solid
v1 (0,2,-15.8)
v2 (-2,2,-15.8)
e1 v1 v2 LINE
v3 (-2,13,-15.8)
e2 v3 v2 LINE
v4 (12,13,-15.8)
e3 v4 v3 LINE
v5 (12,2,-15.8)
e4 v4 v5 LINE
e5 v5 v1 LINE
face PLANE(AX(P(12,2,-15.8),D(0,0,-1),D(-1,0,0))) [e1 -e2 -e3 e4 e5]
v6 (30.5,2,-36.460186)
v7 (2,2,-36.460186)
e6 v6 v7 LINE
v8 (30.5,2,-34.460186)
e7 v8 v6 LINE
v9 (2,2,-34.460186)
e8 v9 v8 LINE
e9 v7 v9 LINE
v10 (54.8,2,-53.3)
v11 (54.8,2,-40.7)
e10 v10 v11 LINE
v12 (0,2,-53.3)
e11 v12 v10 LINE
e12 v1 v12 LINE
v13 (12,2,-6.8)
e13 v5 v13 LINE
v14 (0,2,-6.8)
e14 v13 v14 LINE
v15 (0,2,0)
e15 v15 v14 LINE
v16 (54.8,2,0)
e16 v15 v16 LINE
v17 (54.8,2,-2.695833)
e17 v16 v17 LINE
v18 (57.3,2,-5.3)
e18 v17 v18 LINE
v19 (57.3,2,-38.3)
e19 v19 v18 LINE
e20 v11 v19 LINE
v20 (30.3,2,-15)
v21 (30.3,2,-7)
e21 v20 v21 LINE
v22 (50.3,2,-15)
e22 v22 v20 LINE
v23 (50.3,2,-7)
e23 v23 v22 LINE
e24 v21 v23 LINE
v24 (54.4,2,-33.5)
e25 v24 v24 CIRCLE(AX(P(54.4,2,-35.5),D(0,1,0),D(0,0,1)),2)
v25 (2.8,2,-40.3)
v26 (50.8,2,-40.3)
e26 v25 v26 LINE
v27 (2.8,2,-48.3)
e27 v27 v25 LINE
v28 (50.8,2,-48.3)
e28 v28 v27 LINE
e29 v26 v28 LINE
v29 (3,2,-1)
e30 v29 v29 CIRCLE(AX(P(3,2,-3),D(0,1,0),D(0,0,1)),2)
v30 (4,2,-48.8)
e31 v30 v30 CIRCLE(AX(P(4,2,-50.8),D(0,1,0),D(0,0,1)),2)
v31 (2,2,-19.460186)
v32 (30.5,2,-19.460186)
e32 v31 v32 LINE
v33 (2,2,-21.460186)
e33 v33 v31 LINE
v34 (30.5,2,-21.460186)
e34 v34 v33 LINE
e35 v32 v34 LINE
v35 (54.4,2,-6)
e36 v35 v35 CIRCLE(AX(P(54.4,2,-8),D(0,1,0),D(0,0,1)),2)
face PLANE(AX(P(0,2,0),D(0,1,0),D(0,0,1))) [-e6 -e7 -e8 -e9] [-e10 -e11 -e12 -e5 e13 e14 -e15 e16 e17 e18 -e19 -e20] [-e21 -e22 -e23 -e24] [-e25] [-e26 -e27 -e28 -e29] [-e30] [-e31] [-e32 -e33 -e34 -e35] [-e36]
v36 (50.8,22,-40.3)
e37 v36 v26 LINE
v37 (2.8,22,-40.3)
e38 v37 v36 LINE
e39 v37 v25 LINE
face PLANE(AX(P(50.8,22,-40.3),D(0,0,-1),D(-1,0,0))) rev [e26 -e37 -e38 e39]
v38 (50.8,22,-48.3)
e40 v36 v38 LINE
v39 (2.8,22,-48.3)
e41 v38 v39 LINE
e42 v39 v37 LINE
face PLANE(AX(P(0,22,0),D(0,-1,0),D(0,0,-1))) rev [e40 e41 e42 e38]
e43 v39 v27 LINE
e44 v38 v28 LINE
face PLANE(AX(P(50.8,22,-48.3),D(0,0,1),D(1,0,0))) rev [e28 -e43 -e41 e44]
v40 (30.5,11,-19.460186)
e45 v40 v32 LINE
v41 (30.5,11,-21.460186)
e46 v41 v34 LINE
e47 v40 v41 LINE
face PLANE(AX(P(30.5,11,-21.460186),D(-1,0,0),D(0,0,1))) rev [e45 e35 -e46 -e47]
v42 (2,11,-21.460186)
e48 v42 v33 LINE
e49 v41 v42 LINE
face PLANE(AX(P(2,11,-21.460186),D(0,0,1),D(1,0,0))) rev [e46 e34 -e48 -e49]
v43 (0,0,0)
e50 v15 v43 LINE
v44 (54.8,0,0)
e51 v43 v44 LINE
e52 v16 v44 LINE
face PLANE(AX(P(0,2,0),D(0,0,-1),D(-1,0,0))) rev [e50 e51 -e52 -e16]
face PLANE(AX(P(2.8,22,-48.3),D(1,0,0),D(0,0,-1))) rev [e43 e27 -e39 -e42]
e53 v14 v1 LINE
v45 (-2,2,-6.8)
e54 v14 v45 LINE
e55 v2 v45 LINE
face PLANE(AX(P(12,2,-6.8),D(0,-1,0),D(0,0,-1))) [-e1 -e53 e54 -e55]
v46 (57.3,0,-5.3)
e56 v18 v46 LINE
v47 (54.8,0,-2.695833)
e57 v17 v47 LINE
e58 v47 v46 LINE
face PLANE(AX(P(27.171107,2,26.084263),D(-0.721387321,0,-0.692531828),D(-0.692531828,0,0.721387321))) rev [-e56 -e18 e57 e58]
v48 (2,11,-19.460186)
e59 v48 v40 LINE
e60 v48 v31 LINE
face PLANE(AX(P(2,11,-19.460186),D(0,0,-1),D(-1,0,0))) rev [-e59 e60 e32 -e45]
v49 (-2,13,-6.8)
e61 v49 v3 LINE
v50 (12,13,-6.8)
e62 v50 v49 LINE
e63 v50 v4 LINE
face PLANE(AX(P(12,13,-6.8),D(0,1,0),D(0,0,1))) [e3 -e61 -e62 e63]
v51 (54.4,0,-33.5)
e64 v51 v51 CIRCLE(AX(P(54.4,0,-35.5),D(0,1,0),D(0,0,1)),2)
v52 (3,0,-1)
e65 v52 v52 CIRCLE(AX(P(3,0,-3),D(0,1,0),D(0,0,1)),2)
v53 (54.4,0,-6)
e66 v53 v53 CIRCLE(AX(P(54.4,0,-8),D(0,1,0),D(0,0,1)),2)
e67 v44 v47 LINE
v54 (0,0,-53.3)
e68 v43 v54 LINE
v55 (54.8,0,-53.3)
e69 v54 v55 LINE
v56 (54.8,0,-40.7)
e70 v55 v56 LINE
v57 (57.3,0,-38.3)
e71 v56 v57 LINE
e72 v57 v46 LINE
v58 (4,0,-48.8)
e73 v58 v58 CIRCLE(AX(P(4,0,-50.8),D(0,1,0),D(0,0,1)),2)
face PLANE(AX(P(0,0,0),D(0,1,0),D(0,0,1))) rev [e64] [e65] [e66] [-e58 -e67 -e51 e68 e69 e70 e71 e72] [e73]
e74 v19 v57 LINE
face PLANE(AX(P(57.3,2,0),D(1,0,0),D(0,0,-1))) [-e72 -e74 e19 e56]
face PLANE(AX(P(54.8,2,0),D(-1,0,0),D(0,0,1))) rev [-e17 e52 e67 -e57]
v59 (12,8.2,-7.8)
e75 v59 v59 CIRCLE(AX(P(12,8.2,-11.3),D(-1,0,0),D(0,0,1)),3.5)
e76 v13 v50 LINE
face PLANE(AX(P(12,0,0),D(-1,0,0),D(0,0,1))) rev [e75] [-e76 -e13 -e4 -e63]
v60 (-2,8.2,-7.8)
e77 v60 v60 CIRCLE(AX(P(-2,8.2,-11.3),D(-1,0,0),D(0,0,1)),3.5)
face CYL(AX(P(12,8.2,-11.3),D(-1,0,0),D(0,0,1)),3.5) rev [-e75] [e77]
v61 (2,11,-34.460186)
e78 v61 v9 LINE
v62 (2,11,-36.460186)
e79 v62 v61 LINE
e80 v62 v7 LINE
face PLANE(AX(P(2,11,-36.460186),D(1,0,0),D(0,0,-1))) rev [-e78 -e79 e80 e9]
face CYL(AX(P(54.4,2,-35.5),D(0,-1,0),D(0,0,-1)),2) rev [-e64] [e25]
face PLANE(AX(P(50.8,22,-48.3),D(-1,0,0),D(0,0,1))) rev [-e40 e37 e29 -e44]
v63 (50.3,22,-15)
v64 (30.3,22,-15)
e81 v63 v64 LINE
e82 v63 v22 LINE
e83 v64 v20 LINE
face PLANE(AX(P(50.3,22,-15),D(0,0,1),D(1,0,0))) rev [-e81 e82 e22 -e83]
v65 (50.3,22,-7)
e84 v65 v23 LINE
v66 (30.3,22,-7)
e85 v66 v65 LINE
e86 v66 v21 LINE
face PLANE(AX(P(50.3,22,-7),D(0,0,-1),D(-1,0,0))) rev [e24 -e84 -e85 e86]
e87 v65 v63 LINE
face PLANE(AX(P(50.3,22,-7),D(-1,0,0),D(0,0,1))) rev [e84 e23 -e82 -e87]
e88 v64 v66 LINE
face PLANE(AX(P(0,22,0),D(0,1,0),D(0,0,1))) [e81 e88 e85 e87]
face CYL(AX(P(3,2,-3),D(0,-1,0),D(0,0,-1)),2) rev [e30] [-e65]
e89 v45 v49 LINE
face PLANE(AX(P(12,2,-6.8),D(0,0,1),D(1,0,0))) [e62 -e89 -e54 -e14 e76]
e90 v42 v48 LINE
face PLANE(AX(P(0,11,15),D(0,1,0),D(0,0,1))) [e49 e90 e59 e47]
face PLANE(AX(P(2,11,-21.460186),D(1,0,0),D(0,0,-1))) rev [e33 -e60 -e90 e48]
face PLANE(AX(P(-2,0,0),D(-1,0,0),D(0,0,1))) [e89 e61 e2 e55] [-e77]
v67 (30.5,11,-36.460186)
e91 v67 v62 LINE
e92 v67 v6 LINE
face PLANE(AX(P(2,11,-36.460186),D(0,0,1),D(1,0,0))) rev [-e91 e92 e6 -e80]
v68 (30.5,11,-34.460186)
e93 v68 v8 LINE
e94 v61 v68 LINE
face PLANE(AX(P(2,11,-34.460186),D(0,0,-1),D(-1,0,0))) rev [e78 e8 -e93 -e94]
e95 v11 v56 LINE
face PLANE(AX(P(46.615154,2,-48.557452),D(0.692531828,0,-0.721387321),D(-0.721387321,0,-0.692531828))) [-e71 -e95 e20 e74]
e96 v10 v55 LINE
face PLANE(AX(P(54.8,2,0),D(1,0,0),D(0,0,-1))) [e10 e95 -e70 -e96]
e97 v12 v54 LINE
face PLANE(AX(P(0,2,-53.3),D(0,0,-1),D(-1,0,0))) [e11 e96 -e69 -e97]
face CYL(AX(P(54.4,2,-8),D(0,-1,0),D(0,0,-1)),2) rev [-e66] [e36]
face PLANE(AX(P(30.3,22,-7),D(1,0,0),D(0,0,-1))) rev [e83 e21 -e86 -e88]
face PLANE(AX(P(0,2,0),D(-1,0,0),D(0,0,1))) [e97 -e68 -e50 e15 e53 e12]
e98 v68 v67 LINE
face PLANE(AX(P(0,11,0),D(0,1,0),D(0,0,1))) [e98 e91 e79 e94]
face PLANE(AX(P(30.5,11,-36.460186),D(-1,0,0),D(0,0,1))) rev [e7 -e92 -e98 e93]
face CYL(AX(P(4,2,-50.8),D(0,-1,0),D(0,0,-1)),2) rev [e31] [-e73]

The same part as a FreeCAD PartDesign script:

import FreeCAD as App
import Part
import Sketcher
Q = App.Units.Quantity

doc = App.newDocument("Part")
params = doc.addObject("Spreadsheet::Sheet", "Params")
for row, (alias, value) in enumerate([
    ("sketch1_diameter", "4 mm"),
    ("sketch1_height", "33 mm"),
    ("sketch1_width", "54.8 mm"),
    ("sketch1_height2", "12.6 mm"),
    ("sketch1_height3", "53.3 mm"),
    ("pad1_length", "2 mm"),
    ("sketch2_height", "2 mm"),
    ("sketch2_width", "28.5 mm"),
    ("pad2_length", "9 mm"),
    ("linearpattern_pitch", "15 mm"),
    ("sketch3_width", "20 mm"),
    ("sketch3_height", "8 mm"),
    ("pad3_length", "20 mm"),
    ("sketch4_width", "48 mm"),
    ("sketch4_height", "8 mm"),
    ("pad4_length", "20 mm"),
    ("sketch5_diameter", "7 mm"),
    ("sketch5_width", "11 mm"),
    ("sketch5_height", "9 mm"),
    ("pad5_length", "14 mm"),
], start=1):
    params.set(f"A{row}", alias)
    params.set(f"B{row}", "=" + value)
    params.setAlias(f"B{row}", alias)

body = doc.addObject("PartDesign::Body", "Body")

# Sketch on XZ plane
sketch1 = body.newObject("Sketcher::SketchObject", "Sketch")
sketch1.AttachmentSupport = (doc.getObject("XZ_Plane"), [""])
sketch1.MapMode = "FlatFace"
sketch1.addGeometry(Part.LineSegment(App.Vector(54.8, -40.7, 0), App.Vector(54.8, -53.3, 0)), False)
sketch1.addGeometry(Part.LineSegment(App.Vector(54.8, -53.3, 0), App.Vector(0, -53.3, 0)), False)
sketch1.addGeometry(Part.LineSegment(App.Vector(0, -53.3, 0), App.Vector(0, 0, 0)), False)
sketch1.addGeometry(Part.LineSegment(App.Vector(0, 0, 0), App.Vector(54.8, 0, 0)), False)
sketch1.addGeometry(Part.LineSegment(App.Vector(54.8, 0, 0), App.Vector(54.8, -2.7, 0)), False)
sketch1.addGeometry(Part.LineSegment(App.Vector(54.8, -2.7, 0), App.Vector(57.3, -5.3, 0)), False)
sketch1.addGeometry(Part.LineSegment(App.Vector(57.3, -5.3, 0), App.Vector(57.3, -38.3, 0)), False)
sketch1.addGeometry(Part.LineSegment(App.Vector(57.3, -38.3, 0), App.Vector(54.8, -40.7, 0)), False)
sketch1.addGeometry(Part.Circle(App.Vector(3, -3, 0), App.Vector(0, 0, 1), 2), False)
sketch1.addGeometry(Part.Circle(App.Vector(54.4, -8, 0), App.Vector(0, 0, 1), 2), False)
sketch1.addGeometry(Part.Circle(App.Vector(4, -50.8, 0), App.Vector(0, 0, 1), 2), False)
sketch1.addGeometry(Part.Circle(App.Vector(54.4, -35.5, 0), App.Vector(0, 0, 1), 2), False)
sketch1.addConstraint(Sketcher.Constraint("Coincident", 0, 2, 1, 1))
sketch1.addConstraint(Sketcher.Constraint("Coincident", 1, 2, 2, 1))
sketch1.addConstraint(Sketcher.Constraint("Coincident", 2, 2, 3, 1))
sketch1.addConstraint(Sketcher.Constraint("Coincident", 3, 2, 4, 1))
sketch1.addConstraint(Sketcher.Constraint("Coincident", 4, 2, 5, 1))
sketch1.addConstraint(Sketcher.Constraint("Coincident", 5, 2, 6, 1))
sketch1.addConstraint(Sketcher.Constraint("Coincident", 6, 2, 7, 1))
sketch1.addConstraint(Sketcher.Constraint("Coincident", 7, 2, 0, 1))
sketch1.addConstraint(Sketcher.Constraint("Vertical", 0))
sketch1.addConstraint(Sketcher.Constraint("Horizontal", 1))
sketch1.addConstraint(Sketcher.Constraint("Vertical", 2))
sketch1.addConstraint(Sketcher.Constraint("Horizontal", 3))
sketch1.addConstraint(Sketcher.Constraint("Vertical", 4))
sketch1.addConstraint(Sketcher.Constraint("Vertical", 6))
sketch1.addConstraint(Sketcher.Constraint("Coincident", 2, 2, -1, 1))
sketch1.addConstraint(Sketcher.Constraint("Equal", 8, 9))
sketch1.addConstraint(Sketcher.Constraint("Equal", 9, 10))
sketch1.addConstraint(Sketcher.Constraint("Equal", 10, 11))
sketch1.addConstraint(Sketcher.Constraint("Perpendicular", 5, 7))
sketch1.addConstraint(Sketcher.Constraint("Vertical", 9, 3, 11, 3))
sketch1.addConstraint(Sketcher.Constraint("Vertical", 0, 2, 3, 2))
sketch1.addConstraint(Sketcher.Constraint("Diameter", 8, Q("4 mm")))
sketch1.addConstraint(Sketcher.Constraint("DistanceY", 6, 2, 6, 1, Q("33 mm")))
sketch1.addConstraint(Sketcher.Constraint("DistanceX", 1, 2, 1, 1, Q("54.8 mm")))
sketch1.addConstraint(Sketcher.Constraint("DistanceY", 0, 2, 0, 1, Q("12.6 mm")))
sketch1.addConstraint(Sketcher.Constraint("DistanceY", 2, 1, 2, 2, Q("53.3 mm")))
sketch1.addConstraint(Sketcher.Constraint("DistanceX", -1, 1, 8, 3, Q("3 mm")))
sketch1.addConstraint(Sketcher.Constraint("DistanceY", 8, 3, -1, 1, Q("3 mm")))
sketch1.addConstraint(Sketcher.Constraint("DistanceY", 9, 3, -1, 1, Q("8 mm")))
sketch1.addConstraint(Sketcher.Constraint("DistanceX", -1, 1, 10, 3, Q("4 mm")))
sketch1.addConstraint(Sketcher.Constraint("DistanceY", 0, 2, 5, 2, Q("48 mm")))
sketch1.addConstraint(Sketcher.Constraint("DistanceX", -1, 1, 9, 3, Q("54.4 mm")))
sketch1.addConstraint(Sketcher.Constraint("DistanceY", 10, 3, -1, 1, Q("50.8 mm")))
sketch1.addConstraint(Sketcher.Constraint("DistanceY", 11, 3, -1, 1, Q("35.5 mm")))
sketch1.addConstraint(Sketcher.Constraint("DistanceX", -1, 1, 5, 2, Q("57.3 mm")))
sketch1.setExpression("Constraints[21]", "Params.sketch1_diameter")
sketch1.setExpression("Constraints[22]", "Params.sketch1_height")
sketch1.setExpression("Constraints[23]", "Params.sketch1_width")
sketch1.setExpression("Constraints[24]", "Params.sketch1_height2")
sketch1.setExpression("Constraints[25]", "Params.sketch1_height3")
pad1 = body.newObject("PartDesign::Pad", "Pad")
pad1.Profile = sketch1
pad1.setExpression("Length", "Params.pad1_length")
pad1.Reversed = True

# Sketch on XZ plane
sketch2 = body.newObject("Sketcher::SketchObject", "Sketch001")
sketch2.AttachmentSupport = (doc.getObject("XZ_Plane"), [""])
sketch2.MapMode = "FlatFace"
sketch2.AttachmentOffset = App.Placement(App.Vector(0, 0, -2), App.Rotation())
sketch2.addGeometry(Part.LineSegment(App.Vector(2, -36.5, 0), App.Vector(2, -34.5, 0)), False)
sketch2.addGeometry(Part.LineSegment(App.Vector(2, -34.5, 0), App.Vector(30.5, -34.5, 0)), False)
sketch2.addGeometry(Part.LineSegment(App.Vector(30.5, -34.5, 0), App.Vector(30.5, -36.5, 0)), False)
sketch2.addGeometry(Part.LineSegment(App.Vector(30.5, -36.5, 0), App.Vector(2, -36.5, 0)), False)
sketch2.addConstraint(Sketcher.Constraint("Coincident", 0, 2, 1, 1))
sketch2.addConstraint(Sketcher.Constraint("Coincident", 1, 2, 2, 1))
sketch2.addConstraint(Sketcher.Constraint("Coincident", 2, 2, 3, 1))
sketch2.addConstraint(Sketcher.Constraint("Coincident", 3, 2, 0, 1))
sketch2.addConstraint(Sketcher.Constraint("Vertical", 0))
sketch2.addConstraint(Sketcher.Constraint("Horizontal", 1))
sketch2.addConstraint(Sketcher.Constraint("Vertical", 2))
sketch2.addConstraint(Sketcher.Constraint("Horizontal", 3))
sketch2.addConstraint(Sketcher.Constraint("DistanceY", 0, 1, 0, 2, Q("2 mm")))
sketch2.addConstraint(Sketcher.Constraint("DistanceX", 1, 1, 1, 2, Q("28.5 mm")))
sketch2.addConstraint(Sketcher.Constraint("DistanceX", -1, 1, 0, 2, Q("2 mm")))
sketch2.addConstraint(Sketcher.Constraint("DistanceY", 0, 2, -1, 1, Q("34.460186 mm")))
sketch2.setExpression("Constraints[8]", "Params.sketch2_height")
sketch2.setExpression("Constraints[9]", "Params.sketch2_width")
pad2 = body.newObject("PartDesign::Pad", "Pad001")
pad2.Profile = sketch2
pad2.setExpression("Length", "Params.pad2_length")
pad2.Reversed = True
doc.recompute()

linearpattern = body.newObject("PartDesign::LinearPattern", "LinearPattern")
linearpattern.Originals = [pad2]
linearpattern.Direction = (doc.getObject("Z_Axis"), [""])
linearpattern.Mode = "offset"
linearpattern.setExpression("Offset", "Params.linearpattern_pitch")
linearpattern.Occurrences = 2
body.Tip = linearpattern

# Sketch on XZ plane
sketch3 = body.newObject("Sketcher::SketchObject", "Sketch002")
sketch3.AttachmentSupport = (doc.getObject("XZ_Plane"), [""])
sketch3.MapMode = "FlatFace"
sketch3.AttachmentOffset = App.Placement(App.Vector(0, 0, -2), App.Rotation())
sketch3.addGeometry(Part.LineSegment(App.Vector(30, -15, 0), App.Vector(30, -7, 0)), False)
sketch3.addGeometry(Part.LineSegment(App.Vector(30, -7, 0), App.Vector(50, -7, 0)), False)
sketch3.addGeometry(Part.LineSegment(App.Vector(50, -7, 0), App.Vector(50, -15, 0)), False)
sketch3.addGeometry(Part.LineSegment(App.Vector(50, -15, 0), App.Vector(30, -15, 0)), False)
sketch3.addConstraint(Sketcher.Constraint("Coincident", 0, 2, 1, 1))
sketch3.addConstraint(Sketcher.Constraint("Coincident", 1, 2, 2, 1))
sketch3.addConstraint(Sketcher.Constraint("Coincident", 2, 2, 3, 1))
sketch3.addConstraint(Sketcher.Constraint("Coincident", 3, 2, 0, 1))
sketch3.addConstraint(Sketcher.Constraint("Vertical", 0))
sketch3.addConstraint(Sketcher.Constraint("Horizontal", 1))
sketch3.addConstraint(Sketcher.Constraint("Vertical", 2))
sketch3.addConstraint(Sketcher.Constraint("Horizontal", 3))
sketch3.addConstraint(Sketcher.Constraint("DistanceX", 1, 1, 1, 2, Q("20 mm")))
sketch3.addConstraint(Sketcher.Constraint("DistanceY", 0, 1, 0, 2, Q("8 mm")))
sketch3.addConstraint(Sketcher.Constraint("DistanceY", 0, 2, -1, 1, Q("7 mm")))
sketch3.addConstraint(Sketcher.Constraint("DistanceX", -1, 1, 0, 2, Q("30.3 mm")))
sketch3.setExpression("Constraints[8]", "Params.sketch3_width")
sketch3.setExpression("Constraints[9]", "Params.sketch3_height")
pad3 = body.newObject("PartDesign::Pad", "Pad002")
pad3.Profile = sketch3
pad3.setExpression("Length", "Params.pad3_length")
pad3.Reversed = True

# Sketch on XZ plane
sketch4 = body.newObject("Sketcher::SketchObject", "Sketch003")
sketch4.AttachmentSupport = (doc.getObject("XZ_Plane"), [""])
sketch4.MapMode = "FlatFace"
sketch4.AttachmentOffset = App.Placement(App.Vector(0, 0, -2), App.Rotation())
sketch4.addGeometry(Part.LineSegment(App.Vector(3, -48, 0), App.Vector(3, -40, 0)), False)
sketch4.addGeometry(Part.LineSegment(App.Vector(3, -40, 0), App.Vector(51, -40, 0)), False)
sketch4.addGeometry(Part.LineSegment(App.Vector(51, -40, 0), App.Vector(51, -48, 0)), False)
sketch4.addGeometry(Part.LineSegment(App.Vector(51, -48, 0), App.Vector(3, -48, 0)), False)
sketch4.addConstraint(Sketcher.Constraint("Coincident", 0, 2, 1, 1))
sketch4.addConstraint(Sketcher.Constraint("Coincident", 1, 2, 2, 1))
sketch4.addConstraint(Sketcher.Constraint("Coincident", 2, 2, 3, 1))
sketch4.addConstraint(Sketcher.Constraint("Coincident", 3, 2, 0, 1))
sketch4.addConstraint(Sketcher.Constraint("Vertical", 0))
sketch4.addConstraint(Sketcher.Constraint("Horizontal", 1))
sketch4.addConstraint(Sketcher.Constraint("Vertical", 2))
sketch4.addConstraint(Sketcher.Constraint("Horizontal", 3))
sketch4.addConstraint(Sketcher.Constraint("DistanceX", 1, 1, 1, 2, Q("48 mm")))
sketch4.addConstraint(Sketcher.Constraint("DistanceY", 0, 1, 0, 2, Q("8 mm")))
sketch4.addConstraint(Sketcher.Constraint("DistanceX", -1, 1, 0, 2, Q("2.8 mm")))
sketch4.addConstraint(Sketcher.Constraint("DistanceY", 0, 2, -1, 1, Q("40.3 mm")))
sketch4.setExpression("Constraints[8]", "Params.sketch4_width")
sketch4.setExpression("Constraints[9]", "Params.sketch4_height")
pad4 = body.newObject("PartDesign::Pad", "Pad003")
pad4.Profile = sketch4
pad4.setExpression("Length", "Params.pad4_length")
pad4.Reversed = True

# Sketch on YZ plane
sketch5 = body.newObject("Sketcher::SketchObject", "Sketch004")
sketch5.AttachmentSupport = (doc.getObject("YZ_Plane"), [""])
sketch5.MapMode = "FlatFace"
sketch5.AttachmentOffset = App.Placement(App.Vector(0, 0, -2), App.Rotation())
sketch5.addGeometry(Part.LineSegment(App.Vector(13, -15.8, 0), App.Vector(2, -15.8, 0)), False)
sketch5.addGeometry(Part.LineSegment(App.Vector(2, -15.8, 0), App.Vector(2, -6.8, 0)), False)
sketch5.addGeometry(Part.LineSegment(App.Vector(2, -6.8, 0), App.Vector(13, -6.8, 0)), False)
sketch5.addGeometry(Part.LineSegment(App.Vector(13, -6.8, 0), App.Vector(13, -15.8, 0)), False)
sketch5.addGeometry(Part.Circle(App.Vector(8.2, -11.3, 0), App.Vector(0, 0, 1), 3.5), False)
sketch5.addConstraint(Sketcher.Constraint("Coincident", 0, 2, 1, 1))
sketch5.addConstraint(Sketcher.Constraint("Coincident", 1, 2, 2, 1))
sketch5.addConstraint(Sketcher.Constraint("Coincident", 2, 2, 3, 1))
sketch5.addConstraint(Sketcher.Constraint("Coincident", 3, 2, 0, 1))
sketch5.addConstraint(Sketcher.Constraint("Horizontal", 0))
sketch5.addConstraint(Sketcher.Constraint("Vertical", 1))
sketch5.addConstraint(Sketcher.Constraint("Horizontal", 2))
sketch5.addConstraint(Sketcher.Constraint("Vertical", 3))
sketch5.addConstraint(Sketcher.Constraint("Diameter", 4, Q("7 mm")))
sketch5.addConstraint(Sketcher.Constraint("DistanceX", 0, 2, 0, 1, Q("11 mm")))
sketch5.addConstraint(Sketcher.Constraint("DistanceY", 1, 1, 1, 2, Q("9 mm")))
sketch5.addConstraint(Sketcher.Constraint("DistanceX", -1, 1, 0, 2, Q("2 mm")))
sketch5.addConstraint(Sketcher.Constraint("DistanceX", -1, 1, 4, 3, Q("8.2 mm")))
sketch5.addConstraint(Sketcher.Constraint("DistanceY", 4, 3, -1, 1, Q("11.3 mm")))
sketch5.addConstraint(Sketcher.Constraint("DistanceY", 0, 2, -1, 1, Q("15.8 mm")))
sketch5.setExpression("Constraints[8]", "Params.sketch5_diameter")
sketch5.setExpression("Constraints[9]", "Params.sketch5_width")
sketch5.setExpression("Constraints[10]", "Params.sketch5_height")
pad5 = body.newObject("PartDesign::Pad", "Pad004")
pad5.Profile = sketch5
pad5.setExpression("Length", "Params.pad5_length")

doc.recompute()
